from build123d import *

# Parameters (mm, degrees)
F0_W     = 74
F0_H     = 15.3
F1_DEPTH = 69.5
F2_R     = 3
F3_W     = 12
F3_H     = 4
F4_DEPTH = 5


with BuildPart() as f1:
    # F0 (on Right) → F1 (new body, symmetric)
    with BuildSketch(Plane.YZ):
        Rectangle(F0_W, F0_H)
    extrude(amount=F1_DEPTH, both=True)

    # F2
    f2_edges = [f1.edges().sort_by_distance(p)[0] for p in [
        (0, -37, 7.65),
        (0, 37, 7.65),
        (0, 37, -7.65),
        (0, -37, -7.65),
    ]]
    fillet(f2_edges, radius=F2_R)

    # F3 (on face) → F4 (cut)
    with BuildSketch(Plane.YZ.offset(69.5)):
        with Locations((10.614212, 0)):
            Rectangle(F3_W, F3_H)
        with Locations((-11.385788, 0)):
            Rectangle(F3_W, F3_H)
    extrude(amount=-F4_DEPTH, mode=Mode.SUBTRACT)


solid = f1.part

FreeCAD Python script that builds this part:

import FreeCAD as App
import Part
import Sketcher

V = App.Vector


def edges_at(feature, points):
    """Names of the edges that pass closest to the given points."""
    edges = feature.Shape.Edges
    near = lambda p: min(range(len(edges)), key=lambda i: edges[i].distToShape(Part.Vertex(*p))[0])
    return sorted({f"Edge{near(p) + 1}" for p in points})

doc = App.newDocument("Part")
body = doc.addObject("PartDesign::Body", "Body")

sketch1 = doc.addObject("Sketcher::SketchObject", "Sketch")
body.addObject(sketch1)
sketch1.AttachmentSupport = (doc.YZ_Plane, [""])
sketch1.MapMode = "FlatFace"
sketch1.addGeometry(Part.LineSegment(V(-37, 7.65, 0), V(-37, -7.65, 0)), False)
sketch1.addGeometry(Part.LineSegment(V(-37, -7.65, 0), V(37, -7.65, 0)), False)
sketch1.addGeometry(Part.LineSegment(V(37, -7.65, 0), V(37, 7.65, 0)), False)
sketch1.addGeometry(Part.LineSegment(V(37, 7.65, 0), V(-37, 7.65, 0)), False)
sketch1.addConstraint(Sketcher.Constraint("Coincident", 0, 2, 1, 1))
sketch1.addConstraint(Sketcher.Constraint("Coincident", 1, 2, 2, 1))
sketch1.addConstraint(Sketcher.Constraint("Coincident", 2, 2, 3, 1))
sketch1.addConstraint(Sketcher.Constraint("Coincident", 3, 2, 0, 1))
sketch1.addConstraint(Sketcher.Constraint("Vertical", 0))
sketch1.addConstraint(Sketcher.Constraint("Horizontal", 1))
sketch1.addConstraint(Sketcher.Constraint("Vertical", 2))
sketch1.addConstraint(Sketcher.Constraint("Horizontal", 3))
sketch1.addConstraint(Sketcher.Constraint("Symmetric", 0, 2, 2, 2, -1, 1))
sketch1.addConstraint(Sketcher.Constraint("DistanceX", 1, 1, 1, 2, 74.0))
sketch1.addConstraint(Sketcher.Constraint("DistanceY", 0, 2, 0, 1, 15.3))
pad1 = doc.addObject("PartDesign::Pad", "Pad")
body.addObject(pad1)
pad1.Profile = sketch1
pad1.Length = 139
pad1.Midplane = True
doc.recompute()

fillet = doc.addObject("PartDesign::Fillet", "Fillet")
body.addObject(fillet)
fillet.Base = (pad1, edges_at(pad1, [
    (0, -37, 7.65),
    (0, 37, 7.65),
    (0, 37, -7.65),
    (0, -37, -7.65),
]))
fillet.Radius = 3

sketch2 = doc.addObject("Sketcher::SketchObject", "Sketch001")
body.addObject(sketch2)
sketch2.AttachmentSupport = (doc.YZ_Plane, [""])
sketch2.MapMode = "FlatFace"
sketch2.AttachmentOffset = App.Placement(V(0, 0, 69.5), App.Rotation())
sketch2.addGeometry(Part.LineSegment(V(4.614212, 2, 0), V(4.614212, -2, 0)), False)
sketch2.addGeometry(Part.LineSegment(V(4.614212, -2, 0), V(16.614212, -2, 0)), False)
sketch2.addGeometry(Part.LineSegment(V(16.614212, -2, 0), V(16.614212, 2, 0)), False)
sketch2.addGeometry(Part.LineSegment(V(16.614212, 2, 0), V(4.614212, 2, 0)), False)
sketch2.addGeometry(Part.LineSegment(V(-17.385788, 2, 0), V(-17.385788, -2, 0)), False)
sketch2.addGeometry(Part.LineSegment(V(-17.385788, -2, 0), V(-5.385788, -2, 0)), False)
sketch2.addGeometry(Part.LineSegment(V(-5.385788, -2, 0), V(-5.385788, 2, 0)), False)
sketch2.addGeometry(Part.LineSegment(V(-5.385788, 2, 0), V(-17.385788, 2, 0)), False)
sketch2.addConstraint(Sketcher.Constraint("Coincident", 0, 2, 1, 1))
sketch2.addConstraint(Sketcher.Constraint("Coincident", 1, 2, 2, 1))
sketch2.addConstraint(Sketcher.Constraint("Coincident", 2, 2, 3, 1))
sketch2.addConstraint(Sketcher.Constraint("Coincident", 3, 2, 0, 1))
sketch2.addConstraint(Sketcher.Constraint("Coincident", 4, 2, 5, 1))
sketch2.addConstraint(Sketcher.Constraint("Coincident", 5, 2, 6, 1))
sketch2.addConstraint(Sketcher.Constraint("Coincident", 6, 2, 7, 1))
sketch2.addConstraint(Sketcher.Constraint("Coincident", 7, 2, 4, 1))
sketch2.addConstraint(Sketcher.Constraint("Vertical", 0))
sketch2.addConstraint(Sketcher.Constraint("Horizontal", 1))
sketch2.addConstraint(Sketcher.Constraint("Vertical", 2))
sketch2.addConstraint(Sketcher.Constraint("Horizontal", 3))
sketch2.addConstraint(Sketcher.Constraint("Vertical", 4))
sketch2.addConstraint(Sketcher.Constraint("Horizontal", 5))
sketch2.addConstraint(Sketcher.Constraint("Vertical", 6))
sketch2.addConstraint(Sketcher.Constraint("Horizontal", 7))
sketch2.addConstraint(Sketcher.Constraint("Horizontal", 1, 2, 4, 2))
sketch2.addConstraint(Sketcher.Constraint("Horizontal", 3, 2, 6, 2))
sketch2.addConstraint(Sketcher.Constraint("Equal", 3, 5))
sketch2.addConstraint(Sketcher.Constraint("DistanceX", 1, 1, 1, 2, 12.0))
sketch2.addConstraint(Sketcher.Constraint("DistanceY", 0, 2, 0, 1, 4.0))
sketch2.addConstraint(Sketcher.Constraint("DistanceY", 0, 2, -1, 1, 2.0))
sketch2.addConstraint(Sketcher.Constraint("DistanceX", 4, 2, 0, 2, 22.0))
sketch2.addConstraint(Sketcher.Constraint("DistanceX", -1, 1, 1, 2, 16.614212))
pocket1 = doc.addObject("PartDesign::Pocket", "Pocket")
body.addObject(pocket1)
pocket1.Profile = sketch2
pocket1.Length = 5

doc.recompute()
